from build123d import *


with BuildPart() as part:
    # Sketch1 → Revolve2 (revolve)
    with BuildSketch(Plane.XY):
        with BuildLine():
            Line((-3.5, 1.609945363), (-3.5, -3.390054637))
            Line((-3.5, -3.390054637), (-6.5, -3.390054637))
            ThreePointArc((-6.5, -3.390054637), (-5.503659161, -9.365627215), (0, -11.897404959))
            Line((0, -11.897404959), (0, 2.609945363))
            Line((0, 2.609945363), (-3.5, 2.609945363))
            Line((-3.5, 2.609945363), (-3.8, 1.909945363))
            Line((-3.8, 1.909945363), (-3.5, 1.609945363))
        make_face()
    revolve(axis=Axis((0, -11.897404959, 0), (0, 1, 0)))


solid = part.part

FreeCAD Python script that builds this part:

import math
import FreeCAD as App
import Part
import Sketcher
from FreeCAD import Vector
Q = App.Units.Quantity

doc = App.newDocument("Part")
body = doc.addObject("PartDesign::Body", "Body")

# Sketch on XY plane
sketch1 = doc.addObject("Sketcher::SketchObject", "Sketch")
body.addObject(sketch1)
sketch1.AttachmentSupport = (doc.XY_Plane, [""])
sketch1.MapMode = "FlatFace"
sketch1.addGeometry([
    Part.LineSegment(Vector(-3.5, 1.61, 0), Vector(-3.5, -3.39, 0)),  # 0
    Part.LineSegment(Vector(-3.5, -3.39, 0), Vector(-6.5, -3.39, 0)),  # 1
    Part.ArcOfCircle(Part.Circle(Vector(-0.36, -5.44, 0), Vector(0, 0, 1), 6.47), math.radians(162), math.radians(273)),  # 2
    Part.LineSegment(Vector(0, -11.9, 0), Vector(0, 2.61, 0)),  # 3
    Part.LineSegment(Vector(0, 2.61, 0), Vector(-3.5, 2.61, 0)),  # 4
    Part.LineSegment(Vector(-3.5, 2.61, 0), Vector(-3.8, 1.91, 0)),  # 5
    Part.LineSegment(Vector(-3.8, 1.91, 0), Vector(-3.5, 1.61, 0)),  # 6
], False)
sketch1.addConstraint([
    Sketcher.Constraint("Coincident", 0, 2, 1, 1),
    Sketcher.Constraint("Coincident", 1, 2, 2, 1),
    Sketcher.Constraint("Coincident", 2, 2, 3, 1),
    Sketcher.Constraint("Coincident", 3, 2, 4, 1),
    Sketcher.Constraint("Coincident", 4, 2, 5, 1),
    Sketcher.Constraint("Coincident", 5, 2, 6, 1),
    Sketcher.Constraint("Coincident", 6, 2, 0, 1),
    Sketcher.Constraint("Vertical", 0),
    Sketcher.Constraint("Horizontal", 1),
    Sketcher.Constraint("Vertical", 3),
    Sketcher.Constraint("Horizontal", 4),
    Sketcher.Constraint("PointOnObject", 2, 2, -2),
    Sketcher.Constraint("Vertical", 0, 2, 4, 2),
    Sketcher.Constraint("DistanceX", 1, 2, 1, 1, Q("3 mm")),
    Sketcher.Constraint("DistanceY", 0, 2, 0, 1, Q("5 mm")),
    Sketcher.Constraint("Angle", 6, Q("-45 deg")),
    Sketcher.Constraint("Radius", 2, Q("6.470002 mm")),
    Sketcher.Constraint("DistanceX", 4, 2, 4, 1, Q("3.5 mm")),
    Sketcher.Constraint("DistanceY", 0, 2, 3, 2, Q("6 mm")),
    Sketcher.Constraint("DistanceX", 5, 2, -1, 1, Q("3.8 mm")),
    Sketcher.Constraint("DistanceY", 3, 1, 3, 2, Q("14.50735 mm")),
    Sketcher.Constraint("DistanceY", 2, 3, -1, 1, Q("5.437568 mm")),
])
revolution = doc.addObject("PartDesign::Revolution", "Revolution")
body.addObject(revolution)
revolution.Profile = sketch1
revolution.ReferenceAxis = (sketch1, ["V_Axis"])
revolution.Angle = 360

doc.recompute()
